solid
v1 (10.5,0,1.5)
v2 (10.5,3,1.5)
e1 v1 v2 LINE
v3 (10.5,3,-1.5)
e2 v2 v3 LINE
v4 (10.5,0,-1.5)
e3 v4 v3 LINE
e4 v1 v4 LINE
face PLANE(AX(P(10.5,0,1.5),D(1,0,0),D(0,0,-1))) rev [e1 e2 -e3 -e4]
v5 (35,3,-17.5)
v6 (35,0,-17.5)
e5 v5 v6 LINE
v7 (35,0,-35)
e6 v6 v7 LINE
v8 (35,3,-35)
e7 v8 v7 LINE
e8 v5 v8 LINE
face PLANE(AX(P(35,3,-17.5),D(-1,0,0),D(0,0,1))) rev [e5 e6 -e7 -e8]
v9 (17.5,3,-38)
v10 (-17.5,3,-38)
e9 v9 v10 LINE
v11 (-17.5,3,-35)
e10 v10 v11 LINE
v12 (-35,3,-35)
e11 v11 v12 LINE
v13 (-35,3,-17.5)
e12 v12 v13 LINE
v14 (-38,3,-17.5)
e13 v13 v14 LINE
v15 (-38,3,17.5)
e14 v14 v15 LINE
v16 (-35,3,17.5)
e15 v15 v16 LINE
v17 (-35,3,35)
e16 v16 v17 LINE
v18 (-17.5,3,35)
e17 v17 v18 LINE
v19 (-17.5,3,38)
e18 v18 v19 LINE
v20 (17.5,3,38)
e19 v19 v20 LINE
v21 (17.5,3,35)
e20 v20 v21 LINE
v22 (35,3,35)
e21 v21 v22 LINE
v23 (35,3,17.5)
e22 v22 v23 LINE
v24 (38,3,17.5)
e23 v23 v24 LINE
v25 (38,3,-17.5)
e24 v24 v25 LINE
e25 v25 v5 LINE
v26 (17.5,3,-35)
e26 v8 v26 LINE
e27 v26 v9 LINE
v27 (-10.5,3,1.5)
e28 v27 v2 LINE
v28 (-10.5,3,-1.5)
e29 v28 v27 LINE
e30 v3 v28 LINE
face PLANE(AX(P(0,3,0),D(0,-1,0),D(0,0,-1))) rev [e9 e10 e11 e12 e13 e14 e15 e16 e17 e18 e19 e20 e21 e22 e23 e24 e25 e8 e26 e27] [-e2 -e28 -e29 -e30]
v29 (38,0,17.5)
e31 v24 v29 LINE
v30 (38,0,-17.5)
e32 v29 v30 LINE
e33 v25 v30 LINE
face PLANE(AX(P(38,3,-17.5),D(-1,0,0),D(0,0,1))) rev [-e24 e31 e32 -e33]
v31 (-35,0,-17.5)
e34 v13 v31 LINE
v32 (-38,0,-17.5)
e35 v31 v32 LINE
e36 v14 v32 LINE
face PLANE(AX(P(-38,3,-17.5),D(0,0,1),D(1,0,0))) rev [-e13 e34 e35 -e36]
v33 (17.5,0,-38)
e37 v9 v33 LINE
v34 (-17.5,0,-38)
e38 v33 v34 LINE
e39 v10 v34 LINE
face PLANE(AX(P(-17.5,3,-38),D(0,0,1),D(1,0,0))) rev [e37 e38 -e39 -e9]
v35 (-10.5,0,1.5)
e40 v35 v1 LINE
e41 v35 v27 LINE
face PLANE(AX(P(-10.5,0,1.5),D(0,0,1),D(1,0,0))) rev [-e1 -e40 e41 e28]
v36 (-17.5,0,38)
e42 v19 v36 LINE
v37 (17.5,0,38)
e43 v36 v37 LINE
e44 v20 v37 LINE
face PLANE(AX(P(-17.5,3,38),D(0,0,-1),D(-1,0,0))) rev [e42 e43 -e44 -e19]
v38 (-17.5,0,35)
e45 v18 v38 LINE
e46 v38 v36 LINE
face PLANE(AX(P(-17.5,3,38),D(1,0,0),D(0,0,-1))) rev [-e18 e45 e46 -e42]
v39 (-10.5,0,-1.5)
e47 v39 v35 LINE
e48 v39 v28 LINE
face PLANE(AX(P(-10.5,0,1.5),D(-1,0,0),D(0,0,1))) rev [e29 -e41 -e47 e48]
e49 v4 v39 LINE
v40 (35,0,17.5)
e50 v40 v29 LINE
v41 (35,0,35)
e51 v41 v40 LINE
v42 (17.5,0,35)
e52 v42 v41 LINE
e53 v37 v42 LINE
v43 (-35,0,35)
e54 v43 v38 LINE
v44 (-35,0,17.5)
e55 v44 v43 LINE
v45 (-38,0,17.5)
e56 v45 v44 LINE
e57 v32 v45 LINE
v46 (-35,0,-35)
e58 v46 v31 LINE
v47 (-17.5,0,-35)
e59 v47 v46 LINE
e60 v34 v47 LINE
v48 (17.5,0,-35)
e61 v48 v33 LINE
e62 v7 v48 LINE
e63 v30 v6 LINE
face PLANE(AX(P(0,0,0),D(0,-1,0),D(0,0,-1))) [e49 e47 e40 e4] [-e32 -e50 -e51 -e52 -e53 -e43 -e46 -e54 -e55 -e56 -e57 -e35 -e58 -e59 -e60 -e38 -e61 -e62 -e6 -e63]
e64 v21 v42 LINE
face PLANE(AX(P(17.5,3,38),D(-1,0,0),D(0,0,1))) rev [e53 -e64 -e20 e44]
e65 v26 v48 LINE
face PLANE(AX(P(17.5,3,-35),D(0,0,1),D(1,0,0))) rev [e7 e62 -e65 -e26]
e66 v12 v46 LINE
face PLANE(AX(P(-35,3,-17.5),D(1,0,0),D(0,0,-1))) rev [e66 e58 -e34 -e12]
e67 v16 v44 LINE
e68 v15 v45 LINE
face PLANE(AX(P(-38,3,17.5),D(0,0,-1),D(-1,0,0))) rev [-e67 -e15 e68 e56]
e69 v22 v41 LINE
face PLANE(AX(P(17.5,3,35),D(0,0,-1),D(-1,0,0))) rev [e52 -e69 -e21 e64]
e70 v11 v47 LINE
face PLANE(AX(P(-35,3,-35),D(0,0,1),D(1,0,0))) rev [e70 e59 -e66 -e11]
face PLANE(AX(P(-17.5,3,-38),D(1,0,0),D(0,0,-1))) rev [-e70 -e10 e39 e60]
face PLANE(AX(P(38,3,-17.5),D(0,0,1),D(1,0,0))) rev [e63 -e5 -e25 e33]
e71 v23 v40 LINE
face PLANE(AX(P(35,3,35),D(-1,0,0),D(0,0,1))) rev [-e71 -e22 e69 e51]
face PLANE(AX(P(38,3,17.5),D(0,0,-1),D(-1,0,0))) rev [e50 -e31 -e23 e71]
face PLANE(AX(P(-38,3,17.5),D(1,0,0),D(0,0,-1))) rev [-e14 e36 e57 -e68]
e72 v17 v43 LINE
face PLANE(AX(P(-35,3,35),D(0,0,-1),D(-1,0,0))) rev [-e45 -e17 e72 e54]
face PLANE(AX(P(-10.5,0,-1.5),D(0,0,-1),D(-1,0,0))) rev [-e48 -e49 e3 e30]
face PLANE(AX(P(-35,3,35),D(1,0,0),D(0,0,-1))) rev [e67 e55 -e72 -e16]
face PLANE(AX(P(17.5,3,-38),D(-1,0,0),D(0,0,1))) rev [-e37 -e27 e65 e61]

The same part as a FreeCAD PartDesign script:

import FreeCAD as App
import Part
import Sketcher
Q = App.Units.Quantity


def add_polygon(sketch, points):
    """Adds a closed chain of lines whose ends are joined by coincident constraints."""
    first, n = sketch.GeometryCount, len(points)
    for a, b in zip(points, points[1:] + points[:1]):
        sketch.addGeometry(Part.LineSegment(App.Vector(*a, 0), App.Vector(*b, 0)), False)
    for i in range(n):
        sketch.addConstraint(Sketcher.Constraint("Coincident", first + i, 2, first + (i + 1) % n, 1))

doc = App.newDocument("Part")
body = doc.addObject("PartDesign::Body", "Body")

# Sketch on XZ plane
sketch1 = body.newObject("Sketcher::SketchObject", "Sketch")
sketch1.AttachmentSupport = (doc.getObject("XZ_Plane"), [""])
sketch1.MapMode = "FlatFace"
add_polygon(sketch1, [(-35, 35), (-17.5, 35), (-17.5, 38), (17.5, 38), (17.5, 35), (35, 35), (35, 17.5), (38, 17.5), (38, -17.5), (35, -17.5), (35, -35), (17.5, -35), (17.5, -38), (-17.5, -38), (-17.5, -35), (-35, -35), (-35, -17.5), (-38, -17.5), (-38, 17.5), (-35, 17.5)])  # lines 0-19
sketch1.addConstraint(Sketcher.Constraint("Horizontal", 0))
sketch1.addConstraint(Sketcher.Constraint("Vertical", 1))
sketch1.addConstraint(Sketcher.Constraint("Horizontal", 2))
sketch1.addConstraint(Sketcher.Constraint("Vertical", 3))
sketch1.addConstraint(Sketcher.Constraint("Horizontal", 4))
sketch1.addConstraint(Sketcher.Constraint("Vertical", 5))
sketch1.addConstraint(Sketcher.Constraint("Horizontal", 6))
sketch1.addConstraint(Sketcher.Constraint("Vertical", 7))
sketch1.addConstraint(Sketcher.Constraint("Horizontal", 8))
sketch1.addConstraint(Sketcher.Constraint("Vertical", 9))
sketch1.addConstraint(Sketcher.Constraint("Horizontal", 10))
sketch1.addConstraint(Sketcher.Constraint("Vertical", 11))
sketch1.addConstraint(Sketcher.Constraint("Horizontal", 12))
sketch1.addConstraint(Sketcher.Constraint("Vertical", 13))
sketch1.addConstraint(Sketcher.Constraint("Horizontal", 14))
sketch1.addConstraint(Sketcher.Constraint("Vertical", 15))
sketch1.addConstraint(Sketcher.Constraint("Horizontal", 16))
sketch1.addConstraint(Sketcher.Constraint("Vertical", 17))
sketch1.addConstraint(Sketcher.Constraint("Horizontal", 18))
sketch1.addConstraint(Sketcher.Constraint("Vertical", 19))
sketch1.addConstraint(Sketcher.Constraint("Symmetric", 0, 2, 10, 2, -1, 1))
sketch1.addConstraint(Sketcher.Constraint("Symmetric", 2, 2, 12, 2, -1, 1))
sketch1.addConstraint(Sketcher.Constraint("Symmetric", 4, 2, 14, 2, -1, 1))
sketch1.addConstraint(Sketcher.Constraint("Symmetric", 6, 2, 16, 2, -1, 1))
sketch1.addConstraint(Sketcher.Constraint("Symmetric", 8, 2, 18, 2, -1, 1))
sketch1.addConstraint(Sketcher.Constraint("Symmetric", 0, 2, 3, 2, -2))
sketch1.addConstraint(Sketcher.Constraint("Symmetric", 8, 2, 15, 2, -2))
sketch1.addConstraint(Sketcher.Constraint("Equal", 18, 1))
sketch1.addConstraint(Sketcher.Constraint("Equal", 14, 5))
sketch1.addConstraint(Sketcher.Constraint("Equal", 12, 7))
sketch1.addConstraint(Sketcher.Constraint("DistanceX", 2, 1, 2, 2, Q("35 mm")))
sketch1.addConstraint(Sketcher.Constraint("DistanceX", 6, 1, 6, 2, Q("3 mm")))
sketch1.addConstraint(Sketcher.Constraint("DistanceX", 0, 1, 0, 2, Q("17.5 mm")))
pad1 = body.newObject("PartDesign::Pad", "Pad")
pad1.Profile = sketch1
pad1.Length = 3
pad1.Reversed = True

# Sketch on XZ plane
sketch2 = body.newObject("Sketcher::SketchObject", "Sketch001")
sketch2.AttachmentSupport = (doc.getObject("XZ_Plane"), [""])
sketch2.MapMode = "FlatFace"
sketch2.AttachmentOffset = App.Placement(App.Vector(0, 0, -3), App.Rotation())
add_polygon(sketch2, [(-10.5, -1.5), (-10.5, 1.5), (10.5, 1.5), (10.5, -1.5)])  # lines 0-3
sketch2.addConstraint(Sketcher.Constraint("Vertical", 0))
sketch2.addConstraint(Sketcher.Constraint("Horizontal", 1))
sketch2.addConstraint(Sketcher.Constraint("Vertical", 2))
sketch2.addConstraint(Sketcher.Constraint("Horizontal", 3))
sketch2.addConstraint(Sketcher.Constraint("Symmetric", 0, 2, 2, 2, -1, 1))
sketch2.addConstraint(Sketcher.Constraint("DistanceX", 1, 1, 1, 2, Q("21 mm")))
sketch2.addConstraint(Sketcher.Constraint("DistanceY", 0, 1, 0, 2, Q("3 mm")))
pocket1 = body.newObject("PartDesign::Pocket", "Pocket")
pocket1.Profile = sketch2
pocket1.Length = 3
pocket1.Reversed = True

doc.recompute()
